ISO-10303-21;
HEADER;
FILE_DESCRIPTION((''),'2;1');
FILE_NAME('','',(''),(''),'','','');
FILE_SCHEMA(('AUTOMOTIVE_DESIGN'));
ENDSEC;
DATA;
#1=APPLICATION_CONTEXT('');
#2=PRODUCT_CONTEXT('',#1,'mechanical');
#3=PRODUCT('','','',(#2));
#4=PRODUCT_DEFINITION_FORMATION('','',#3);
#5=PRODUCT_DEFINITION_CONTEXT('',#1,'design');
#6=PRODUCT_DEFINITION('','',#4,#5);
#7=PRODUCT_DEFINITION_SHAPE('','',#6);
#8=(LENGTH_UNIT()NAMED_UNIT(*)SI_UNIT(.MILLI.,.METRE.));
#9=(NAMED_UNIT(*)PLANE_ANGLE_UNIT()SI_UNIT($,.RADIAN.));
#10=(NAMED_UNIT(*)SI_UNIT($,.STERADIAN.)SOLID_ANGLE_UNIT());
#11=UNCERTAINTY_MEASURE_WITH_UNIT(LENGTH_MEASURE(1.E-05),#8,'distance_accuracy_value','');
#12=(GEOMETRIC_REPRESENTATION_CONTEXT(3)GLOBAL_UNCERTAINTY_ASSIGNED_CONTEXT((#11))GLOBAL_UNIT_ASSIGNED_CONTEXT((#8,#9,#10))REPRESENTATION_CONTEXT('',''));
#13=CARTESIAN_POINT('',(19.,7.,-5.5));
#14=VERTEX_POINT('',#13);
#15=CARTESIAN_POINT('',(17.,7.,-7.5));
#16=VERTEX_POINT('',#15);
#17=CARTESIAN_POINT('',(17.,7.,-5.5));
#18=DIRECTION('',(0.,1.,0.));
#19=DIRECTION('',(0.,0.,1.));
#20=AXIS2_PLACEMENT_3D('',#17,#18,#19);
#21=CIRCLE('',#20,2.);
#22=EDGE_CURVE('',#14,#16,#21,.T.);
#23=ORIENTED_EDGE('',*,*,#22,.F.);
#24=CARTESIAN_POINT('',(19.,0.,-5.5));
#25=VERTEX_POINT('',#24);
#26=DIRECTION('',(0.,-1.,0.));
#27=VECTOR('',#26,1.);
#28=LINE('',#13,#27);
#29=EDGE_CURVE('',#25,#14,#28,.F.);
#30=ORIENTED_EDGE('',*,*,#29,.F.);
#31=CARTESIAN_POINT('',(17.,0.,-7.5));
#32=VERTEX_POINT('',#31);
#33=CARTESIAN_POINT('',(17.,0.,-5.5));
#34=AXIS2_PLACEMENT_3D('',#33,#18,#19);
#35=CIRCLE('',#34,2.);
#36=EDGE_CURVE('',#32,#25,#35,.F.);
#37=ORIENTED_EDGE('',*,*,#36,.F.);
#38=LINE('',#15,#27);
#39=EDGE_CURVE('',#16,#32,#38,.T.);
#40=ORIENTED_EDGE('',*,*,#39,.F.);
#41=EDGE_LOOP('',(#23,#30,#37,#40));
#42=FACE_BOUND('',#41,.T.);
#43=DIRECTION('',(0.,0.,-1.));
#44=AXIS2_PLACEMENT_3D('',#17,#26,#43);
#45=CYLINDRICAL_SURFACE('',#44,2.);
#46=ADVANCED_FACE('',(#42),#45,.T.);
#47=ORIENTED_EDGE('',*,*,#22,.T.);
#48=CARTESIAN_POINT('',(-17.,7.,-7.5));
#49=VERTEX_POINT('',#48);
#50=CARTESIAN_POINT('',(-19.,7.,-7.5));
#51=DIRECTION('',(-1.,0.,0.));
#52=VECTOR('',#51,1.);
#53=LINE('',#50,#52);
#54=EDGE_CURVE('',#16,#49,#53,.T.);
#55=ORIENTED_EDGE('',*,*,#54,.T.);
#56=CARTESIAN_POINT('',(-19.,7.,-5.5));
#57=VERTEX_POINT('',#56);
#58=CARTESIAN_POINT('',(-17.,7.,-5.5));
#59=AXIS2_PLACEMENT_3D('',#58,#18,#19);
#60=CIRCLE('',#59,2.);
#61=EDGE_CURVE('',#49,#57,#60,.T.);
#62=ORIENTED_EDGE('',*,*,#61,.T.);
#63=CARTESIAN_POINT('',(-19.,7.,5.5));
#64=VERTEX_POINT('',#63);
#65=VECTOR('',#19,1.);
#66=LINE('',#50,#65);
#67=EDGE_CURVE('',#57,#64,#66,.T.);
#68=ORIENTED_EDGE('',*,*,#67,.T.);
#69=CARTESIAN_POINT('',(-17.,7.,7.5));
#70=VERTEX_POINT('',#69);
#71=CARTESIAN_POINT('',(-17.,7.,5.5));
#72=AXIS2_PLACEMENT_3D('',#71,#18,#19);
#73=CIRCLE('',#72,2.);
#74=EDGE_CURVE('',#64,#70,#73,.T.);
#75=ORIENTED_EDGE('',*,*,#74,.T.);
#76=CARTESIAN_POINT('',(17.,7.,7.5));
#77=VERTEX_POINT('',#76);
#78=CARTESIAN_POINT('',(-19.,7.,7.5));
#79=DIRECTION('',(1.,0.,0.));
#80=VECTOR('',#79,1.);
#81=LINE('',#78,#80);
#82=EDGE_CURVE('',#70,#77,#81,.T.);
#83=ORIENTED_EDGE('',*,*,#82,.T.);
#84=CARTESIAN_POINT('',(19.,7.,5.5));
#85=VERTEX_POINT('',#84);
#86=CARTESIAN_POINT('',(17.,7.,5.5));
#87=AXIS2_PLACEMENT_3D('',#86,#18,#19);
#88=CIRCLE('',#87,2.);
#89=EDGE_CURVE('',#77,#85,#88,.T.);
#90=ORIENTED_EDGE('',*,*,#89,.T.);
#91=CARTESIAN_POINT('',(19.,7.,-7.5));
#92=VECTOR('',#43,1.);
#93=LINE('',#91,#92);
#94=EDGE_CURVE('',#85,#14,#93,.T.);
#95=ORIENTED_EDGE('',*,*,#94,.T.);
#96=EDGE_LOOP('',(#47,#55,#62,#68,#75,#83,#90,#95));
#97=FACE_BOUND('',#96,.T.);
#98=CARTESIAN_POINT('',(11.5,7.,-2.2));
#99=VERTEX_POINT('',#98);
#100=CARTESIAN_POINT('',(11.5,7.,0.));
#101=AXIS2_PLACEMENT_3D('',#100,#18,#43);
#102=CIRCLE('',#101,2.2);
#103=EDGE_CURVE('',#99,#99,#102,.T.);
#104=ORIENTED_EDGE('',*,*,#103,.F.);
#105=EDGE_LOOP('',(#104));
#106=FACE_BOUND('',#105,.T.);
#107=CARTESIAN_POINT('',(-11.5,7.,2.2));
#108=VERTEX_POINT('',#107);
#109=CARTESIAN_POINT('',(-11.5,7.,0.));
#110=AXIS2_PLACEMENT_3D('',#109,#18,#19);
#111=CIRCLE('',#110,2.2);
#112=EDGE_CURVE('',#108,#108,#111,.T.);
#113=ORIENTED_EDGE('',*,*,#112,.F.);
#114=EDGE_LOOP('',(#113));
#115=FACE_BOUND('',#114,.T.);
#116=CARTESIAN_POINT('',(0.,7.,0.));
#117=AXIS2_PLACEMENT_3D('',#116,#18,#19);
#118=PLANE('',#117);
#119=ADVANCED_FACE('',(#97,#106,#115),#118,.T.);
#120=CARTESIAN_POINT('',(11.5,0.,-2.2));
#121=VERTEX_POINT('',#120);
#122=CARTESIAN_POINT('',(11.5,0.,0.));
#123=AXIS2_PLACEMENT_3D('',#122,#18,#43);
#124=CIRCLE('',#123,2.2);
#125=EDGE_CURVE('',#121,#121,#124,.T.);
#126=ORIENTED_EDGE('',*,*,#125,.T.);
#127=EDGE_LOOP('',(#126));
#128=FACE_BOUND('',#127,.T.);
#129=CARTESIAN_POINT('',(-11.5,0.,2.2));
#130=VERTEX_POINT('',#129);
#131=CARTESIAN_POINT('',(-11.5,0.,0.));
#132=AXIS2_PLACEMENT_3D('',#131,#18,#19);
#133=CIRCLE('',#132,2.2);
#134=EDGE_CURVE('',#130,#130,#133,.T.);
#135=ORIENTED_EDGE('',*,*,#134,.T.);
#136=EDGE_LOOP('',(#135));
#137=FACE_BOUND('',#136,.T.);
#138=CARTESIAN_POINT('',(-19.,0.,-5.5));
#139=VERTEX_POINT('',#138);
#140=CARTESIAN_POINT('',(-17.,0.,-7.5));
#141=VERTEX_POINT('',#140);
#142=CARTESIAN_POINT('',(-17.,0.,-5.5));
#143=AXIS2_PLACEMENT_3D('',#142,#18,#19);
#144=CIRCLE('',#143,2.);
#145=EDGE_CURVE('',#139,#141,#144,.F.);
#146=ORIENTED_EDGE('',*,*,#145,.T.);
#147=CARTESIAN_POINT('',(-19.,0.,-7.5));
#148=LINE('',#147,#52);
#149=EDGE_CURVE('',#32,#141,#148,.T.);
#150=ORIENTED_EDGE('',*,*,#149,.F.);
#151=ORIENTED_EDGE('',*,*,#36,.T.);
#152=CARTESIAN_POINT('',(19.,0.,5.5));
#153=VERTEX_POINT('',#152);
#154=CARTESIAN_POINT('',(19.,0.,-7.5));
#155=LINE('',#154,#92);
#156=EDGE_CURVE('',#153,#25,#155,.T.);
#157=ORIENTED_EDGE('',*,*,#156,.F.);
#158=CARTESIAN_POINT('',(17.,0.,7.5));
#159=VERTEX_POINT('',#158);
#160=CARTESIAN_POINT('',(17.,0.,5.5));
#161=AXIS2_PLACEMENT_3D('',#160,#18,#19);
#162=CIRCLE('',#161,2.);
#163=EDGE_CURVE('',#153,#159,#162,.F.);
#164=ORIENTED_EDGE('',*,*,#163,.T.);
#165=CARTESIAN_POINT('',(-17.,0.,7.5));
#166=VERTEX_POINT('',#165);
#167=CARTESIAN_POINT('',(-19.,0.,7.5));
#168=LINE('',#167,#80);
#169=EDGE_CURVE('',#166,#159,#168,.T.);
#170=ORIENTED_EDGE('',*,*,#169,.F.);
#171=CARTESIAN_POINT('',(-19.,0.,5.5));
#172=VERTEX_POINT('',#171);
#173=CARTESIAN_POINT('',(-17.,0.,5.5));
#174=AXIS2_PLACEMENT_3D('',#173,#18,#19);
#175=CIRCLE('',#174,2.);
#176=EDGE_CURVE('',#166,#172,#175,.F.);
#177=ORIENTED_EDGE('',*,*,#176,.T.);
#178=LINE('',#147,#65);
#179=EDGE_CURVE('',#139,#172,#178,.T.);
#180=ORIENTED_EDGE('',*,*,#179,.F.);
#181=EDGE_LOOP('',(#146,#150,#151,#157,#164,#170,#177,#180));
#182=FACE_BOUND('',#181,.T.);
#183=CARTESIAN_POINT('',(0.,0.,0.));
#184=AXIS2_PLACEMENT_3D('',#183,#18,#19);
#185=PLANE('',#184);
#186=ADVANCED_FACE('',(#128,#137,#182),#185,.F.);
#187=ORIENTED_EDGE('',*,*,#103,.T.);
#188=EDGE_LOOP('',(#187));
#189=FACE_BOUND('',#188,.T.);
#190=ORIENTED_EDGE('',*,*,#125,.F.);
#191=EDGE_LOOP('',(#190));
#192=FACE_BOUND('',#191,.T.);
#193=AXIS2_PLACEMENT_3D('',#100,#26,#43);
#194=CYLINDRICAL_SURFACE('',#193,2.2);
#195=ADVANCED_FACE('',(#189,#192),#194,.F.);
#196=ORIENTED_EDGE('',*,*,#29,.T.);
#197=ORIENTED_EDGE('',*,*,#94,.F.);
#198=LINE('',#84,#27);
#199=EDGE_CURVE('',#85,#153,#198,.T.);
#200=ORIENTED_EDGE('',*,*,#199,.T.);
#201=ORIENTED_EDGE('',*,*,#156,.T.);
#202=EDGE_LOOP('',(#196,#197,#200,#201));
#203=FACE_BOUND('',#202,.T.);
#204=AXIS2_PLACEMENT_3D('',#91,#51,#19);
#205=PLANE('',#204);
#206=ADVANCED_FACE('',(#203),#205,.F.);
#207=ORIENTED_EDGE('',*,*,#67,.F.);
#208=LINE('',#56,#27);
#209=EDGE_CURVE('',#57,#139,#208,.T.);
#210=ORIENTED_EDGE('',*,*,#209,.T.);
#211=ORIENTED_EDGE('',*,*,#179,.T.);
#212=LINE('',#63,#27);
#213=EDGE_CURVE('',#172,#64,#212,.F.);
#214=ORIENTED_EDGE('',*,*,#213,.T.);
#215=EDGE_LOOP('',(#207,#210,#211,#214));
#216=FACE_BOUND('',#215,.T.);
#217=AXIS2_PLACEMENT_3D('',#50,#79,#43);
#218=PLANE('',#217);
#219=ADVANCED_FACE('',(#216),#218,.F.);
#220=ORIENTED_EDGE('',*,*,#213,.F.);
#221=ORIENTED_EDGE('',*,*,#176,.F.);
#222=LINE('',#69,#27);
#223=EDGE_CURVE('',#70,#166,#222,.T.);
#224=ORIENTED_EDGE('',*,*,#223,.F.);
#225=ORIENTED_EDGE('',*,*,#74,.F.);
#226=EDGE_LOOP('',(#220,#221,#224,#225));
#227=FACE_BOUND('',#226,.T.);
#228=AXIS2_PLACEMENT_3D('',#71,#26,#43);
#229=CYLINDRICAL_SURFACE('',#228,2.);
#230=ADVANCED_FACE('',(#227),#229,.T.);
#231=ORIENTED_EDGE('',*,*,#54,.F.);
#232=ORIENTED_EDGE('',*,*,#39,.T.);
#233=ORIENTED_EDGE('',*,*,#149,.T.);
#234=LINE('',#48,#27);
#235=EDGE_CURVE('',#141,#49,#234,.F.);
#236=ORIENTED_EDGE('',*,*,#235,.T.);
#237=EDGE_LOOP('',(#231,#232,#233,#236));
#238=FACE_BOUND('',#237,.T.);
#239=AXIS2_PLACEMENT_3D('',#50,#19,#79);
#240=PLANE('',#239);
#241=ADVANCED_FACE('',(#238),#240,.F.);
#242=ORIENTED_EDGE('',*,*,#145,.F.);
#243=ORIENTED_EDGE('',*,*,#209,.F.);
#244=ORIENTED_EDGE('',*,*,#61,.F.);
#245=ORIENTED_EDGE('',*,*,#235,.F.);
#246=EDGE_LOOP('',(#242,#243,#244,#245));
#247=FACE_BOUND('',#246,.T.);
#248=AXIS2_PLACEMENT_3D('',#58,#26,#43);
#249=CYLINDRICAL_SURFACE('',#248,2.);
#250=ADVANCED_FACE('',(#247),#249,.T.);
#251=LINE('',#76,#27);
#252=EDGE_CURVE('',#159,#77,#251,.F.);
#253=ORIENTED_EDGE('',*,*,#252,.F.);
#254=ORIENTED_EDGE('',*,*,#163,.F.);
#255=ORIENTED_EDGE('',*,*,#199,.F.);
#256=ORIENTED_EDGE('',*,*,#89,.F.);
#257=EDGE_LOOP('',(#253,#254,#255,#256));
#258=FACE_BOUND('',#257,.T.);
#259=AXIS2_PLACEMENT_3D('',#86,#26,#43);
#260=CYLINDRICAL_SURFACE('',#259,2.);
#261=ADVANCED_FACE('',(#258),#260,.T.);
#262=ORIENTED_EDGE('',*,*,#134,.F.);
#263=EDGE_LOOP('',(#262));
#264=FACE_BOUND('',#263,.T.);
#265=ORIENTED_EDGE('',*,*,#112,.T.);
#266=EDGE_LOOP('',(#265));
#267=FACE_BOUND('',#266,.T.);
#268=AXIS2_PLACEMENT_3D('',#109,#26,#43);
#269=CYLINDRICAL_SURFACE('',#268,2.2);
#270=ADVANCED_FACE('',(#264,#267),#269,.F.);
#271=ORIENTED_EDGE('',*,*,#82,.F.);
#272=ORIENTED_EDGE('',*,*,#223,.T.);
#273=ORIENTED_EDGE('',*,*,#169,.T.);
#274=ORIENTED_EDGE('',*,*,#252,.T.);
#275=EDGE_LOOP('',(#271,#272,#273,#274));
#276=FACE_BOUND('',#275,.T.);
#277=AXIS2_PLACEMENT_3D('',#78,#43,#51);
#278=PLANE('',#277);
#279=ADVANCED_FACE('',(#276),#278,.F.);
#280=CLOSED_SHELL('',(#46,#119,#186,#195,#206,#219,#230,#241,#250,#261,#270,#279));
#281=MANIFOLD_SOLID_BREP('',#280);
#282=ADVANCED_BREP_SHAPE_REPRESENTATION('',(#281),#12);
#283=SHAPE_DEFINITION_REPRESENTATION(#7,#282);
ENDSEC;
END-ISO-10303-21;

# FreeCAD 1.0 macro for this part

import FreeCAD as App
import Part
import Sketcher
Q = App.Units.Quantity


def edges_at(feature, points):
    """Names of the edges that pass closest to the given points."""
    edges = feature.Shape.Edges
    near = lambda p: min(range(len(edges)), key=lambda i: edges[i].distToShape(Part.Vertex(*p))[0])
    return sorted({f"Edge{near(p) + 1}" for p in points})

doc = App.newDocument("Part")
body = doc.addObject("PartDesign::Body", "Body")

sketch1 = body.newObject("Sketcher::SketchObject", "Sketch")
sketch1.AttachmentSupport = (doc.getObject("XZ_Plane"), [""])
sketch1.MapMode = "FlatFace"
sketch1.addGeometry([
    Part.LineSegment(App.Vector(-19, -7.5, 0), App.Vector(-19, 7.5, 0)),
    Part.LineSegment(App.Vector(-19, 7.5, 0), App.Vector(19, 7.5, 0)),
    Part.LineSegment(App.Vector(19, 7.5, 0), App.Vector(19, -7.5, 0)),
    Part.LineSegment(App.Vector(19, -7.5, 0), App.Vector(-19, -7.5, 0)),
    Part.Circle(App.Vector(-11.5, 0, 0), App.Vector(0, 0, 1), 2.2),
    Part.Circle(App.Vector(11.5, 0, 0), App.Vector(0, 0, 1), 2.2),
], False)
sketch1.addConstraint([
    Sketcher.Constraint("Coincident", 0, 2, 1, 1),
    Sketcher.Constraint("Coincident", 1, 2, 2, 1),
    Sketcher.Constraint("Coincident", 2, 2, 3, 1),
    Sketcher.Constraint("Coincident", 3, 2, 0, 1),
    Sketcher.Constraint("Vertical", 0),
    Sketcher.Constraint("Horizontal", 1),
    Sketcher.Constraint("Vertical", 2),
    Sketcher.Constraint("Horizontal", 3),
    Sketcher.Constraint("Equal", 4, 5),
    Sketcher.Constraint("Symmetric", 4, 3, 5, 3, -1, 1),
    Sketcher.Constraint("Symmetric", 0, 2, 2, 2, -1, 1),
    Sketcher.Constraint("PointOnObject", 4, 3, -1),
    Sketcher.Constraint("Diameter", 4, Q("4.4 mm")),
    Sketcher.Constraint("DistanceX", 1, 1, 1, 2, Q("38 mm")),
    Sketcher.Constraint("DistanceY", 0, 1, 0, 2, Q("15 mm")),
    Sketcher.Constraint("DistanceX", 4, 3, 5, 3, Q("23 mm")),
])
pad1 = body.newObject("PartDesign::Pad", "Pad")
pad1.Profile = sketch1
pad1.Length = 7
pad1.Reversed = True
doc.recompute()

fillet = body.newObject("PartDesign::Fillet", "Fillet")
fillet.Base = (pad1, edges_at(pad1, [
    (19, 3.5, 7.5),
    (-19, 3.5, 7.5),
    (-19, 3.5, -7.5),
    (19, 3.5, -7.5),
]))
fillet.Radius = 2

doc.recompute()
